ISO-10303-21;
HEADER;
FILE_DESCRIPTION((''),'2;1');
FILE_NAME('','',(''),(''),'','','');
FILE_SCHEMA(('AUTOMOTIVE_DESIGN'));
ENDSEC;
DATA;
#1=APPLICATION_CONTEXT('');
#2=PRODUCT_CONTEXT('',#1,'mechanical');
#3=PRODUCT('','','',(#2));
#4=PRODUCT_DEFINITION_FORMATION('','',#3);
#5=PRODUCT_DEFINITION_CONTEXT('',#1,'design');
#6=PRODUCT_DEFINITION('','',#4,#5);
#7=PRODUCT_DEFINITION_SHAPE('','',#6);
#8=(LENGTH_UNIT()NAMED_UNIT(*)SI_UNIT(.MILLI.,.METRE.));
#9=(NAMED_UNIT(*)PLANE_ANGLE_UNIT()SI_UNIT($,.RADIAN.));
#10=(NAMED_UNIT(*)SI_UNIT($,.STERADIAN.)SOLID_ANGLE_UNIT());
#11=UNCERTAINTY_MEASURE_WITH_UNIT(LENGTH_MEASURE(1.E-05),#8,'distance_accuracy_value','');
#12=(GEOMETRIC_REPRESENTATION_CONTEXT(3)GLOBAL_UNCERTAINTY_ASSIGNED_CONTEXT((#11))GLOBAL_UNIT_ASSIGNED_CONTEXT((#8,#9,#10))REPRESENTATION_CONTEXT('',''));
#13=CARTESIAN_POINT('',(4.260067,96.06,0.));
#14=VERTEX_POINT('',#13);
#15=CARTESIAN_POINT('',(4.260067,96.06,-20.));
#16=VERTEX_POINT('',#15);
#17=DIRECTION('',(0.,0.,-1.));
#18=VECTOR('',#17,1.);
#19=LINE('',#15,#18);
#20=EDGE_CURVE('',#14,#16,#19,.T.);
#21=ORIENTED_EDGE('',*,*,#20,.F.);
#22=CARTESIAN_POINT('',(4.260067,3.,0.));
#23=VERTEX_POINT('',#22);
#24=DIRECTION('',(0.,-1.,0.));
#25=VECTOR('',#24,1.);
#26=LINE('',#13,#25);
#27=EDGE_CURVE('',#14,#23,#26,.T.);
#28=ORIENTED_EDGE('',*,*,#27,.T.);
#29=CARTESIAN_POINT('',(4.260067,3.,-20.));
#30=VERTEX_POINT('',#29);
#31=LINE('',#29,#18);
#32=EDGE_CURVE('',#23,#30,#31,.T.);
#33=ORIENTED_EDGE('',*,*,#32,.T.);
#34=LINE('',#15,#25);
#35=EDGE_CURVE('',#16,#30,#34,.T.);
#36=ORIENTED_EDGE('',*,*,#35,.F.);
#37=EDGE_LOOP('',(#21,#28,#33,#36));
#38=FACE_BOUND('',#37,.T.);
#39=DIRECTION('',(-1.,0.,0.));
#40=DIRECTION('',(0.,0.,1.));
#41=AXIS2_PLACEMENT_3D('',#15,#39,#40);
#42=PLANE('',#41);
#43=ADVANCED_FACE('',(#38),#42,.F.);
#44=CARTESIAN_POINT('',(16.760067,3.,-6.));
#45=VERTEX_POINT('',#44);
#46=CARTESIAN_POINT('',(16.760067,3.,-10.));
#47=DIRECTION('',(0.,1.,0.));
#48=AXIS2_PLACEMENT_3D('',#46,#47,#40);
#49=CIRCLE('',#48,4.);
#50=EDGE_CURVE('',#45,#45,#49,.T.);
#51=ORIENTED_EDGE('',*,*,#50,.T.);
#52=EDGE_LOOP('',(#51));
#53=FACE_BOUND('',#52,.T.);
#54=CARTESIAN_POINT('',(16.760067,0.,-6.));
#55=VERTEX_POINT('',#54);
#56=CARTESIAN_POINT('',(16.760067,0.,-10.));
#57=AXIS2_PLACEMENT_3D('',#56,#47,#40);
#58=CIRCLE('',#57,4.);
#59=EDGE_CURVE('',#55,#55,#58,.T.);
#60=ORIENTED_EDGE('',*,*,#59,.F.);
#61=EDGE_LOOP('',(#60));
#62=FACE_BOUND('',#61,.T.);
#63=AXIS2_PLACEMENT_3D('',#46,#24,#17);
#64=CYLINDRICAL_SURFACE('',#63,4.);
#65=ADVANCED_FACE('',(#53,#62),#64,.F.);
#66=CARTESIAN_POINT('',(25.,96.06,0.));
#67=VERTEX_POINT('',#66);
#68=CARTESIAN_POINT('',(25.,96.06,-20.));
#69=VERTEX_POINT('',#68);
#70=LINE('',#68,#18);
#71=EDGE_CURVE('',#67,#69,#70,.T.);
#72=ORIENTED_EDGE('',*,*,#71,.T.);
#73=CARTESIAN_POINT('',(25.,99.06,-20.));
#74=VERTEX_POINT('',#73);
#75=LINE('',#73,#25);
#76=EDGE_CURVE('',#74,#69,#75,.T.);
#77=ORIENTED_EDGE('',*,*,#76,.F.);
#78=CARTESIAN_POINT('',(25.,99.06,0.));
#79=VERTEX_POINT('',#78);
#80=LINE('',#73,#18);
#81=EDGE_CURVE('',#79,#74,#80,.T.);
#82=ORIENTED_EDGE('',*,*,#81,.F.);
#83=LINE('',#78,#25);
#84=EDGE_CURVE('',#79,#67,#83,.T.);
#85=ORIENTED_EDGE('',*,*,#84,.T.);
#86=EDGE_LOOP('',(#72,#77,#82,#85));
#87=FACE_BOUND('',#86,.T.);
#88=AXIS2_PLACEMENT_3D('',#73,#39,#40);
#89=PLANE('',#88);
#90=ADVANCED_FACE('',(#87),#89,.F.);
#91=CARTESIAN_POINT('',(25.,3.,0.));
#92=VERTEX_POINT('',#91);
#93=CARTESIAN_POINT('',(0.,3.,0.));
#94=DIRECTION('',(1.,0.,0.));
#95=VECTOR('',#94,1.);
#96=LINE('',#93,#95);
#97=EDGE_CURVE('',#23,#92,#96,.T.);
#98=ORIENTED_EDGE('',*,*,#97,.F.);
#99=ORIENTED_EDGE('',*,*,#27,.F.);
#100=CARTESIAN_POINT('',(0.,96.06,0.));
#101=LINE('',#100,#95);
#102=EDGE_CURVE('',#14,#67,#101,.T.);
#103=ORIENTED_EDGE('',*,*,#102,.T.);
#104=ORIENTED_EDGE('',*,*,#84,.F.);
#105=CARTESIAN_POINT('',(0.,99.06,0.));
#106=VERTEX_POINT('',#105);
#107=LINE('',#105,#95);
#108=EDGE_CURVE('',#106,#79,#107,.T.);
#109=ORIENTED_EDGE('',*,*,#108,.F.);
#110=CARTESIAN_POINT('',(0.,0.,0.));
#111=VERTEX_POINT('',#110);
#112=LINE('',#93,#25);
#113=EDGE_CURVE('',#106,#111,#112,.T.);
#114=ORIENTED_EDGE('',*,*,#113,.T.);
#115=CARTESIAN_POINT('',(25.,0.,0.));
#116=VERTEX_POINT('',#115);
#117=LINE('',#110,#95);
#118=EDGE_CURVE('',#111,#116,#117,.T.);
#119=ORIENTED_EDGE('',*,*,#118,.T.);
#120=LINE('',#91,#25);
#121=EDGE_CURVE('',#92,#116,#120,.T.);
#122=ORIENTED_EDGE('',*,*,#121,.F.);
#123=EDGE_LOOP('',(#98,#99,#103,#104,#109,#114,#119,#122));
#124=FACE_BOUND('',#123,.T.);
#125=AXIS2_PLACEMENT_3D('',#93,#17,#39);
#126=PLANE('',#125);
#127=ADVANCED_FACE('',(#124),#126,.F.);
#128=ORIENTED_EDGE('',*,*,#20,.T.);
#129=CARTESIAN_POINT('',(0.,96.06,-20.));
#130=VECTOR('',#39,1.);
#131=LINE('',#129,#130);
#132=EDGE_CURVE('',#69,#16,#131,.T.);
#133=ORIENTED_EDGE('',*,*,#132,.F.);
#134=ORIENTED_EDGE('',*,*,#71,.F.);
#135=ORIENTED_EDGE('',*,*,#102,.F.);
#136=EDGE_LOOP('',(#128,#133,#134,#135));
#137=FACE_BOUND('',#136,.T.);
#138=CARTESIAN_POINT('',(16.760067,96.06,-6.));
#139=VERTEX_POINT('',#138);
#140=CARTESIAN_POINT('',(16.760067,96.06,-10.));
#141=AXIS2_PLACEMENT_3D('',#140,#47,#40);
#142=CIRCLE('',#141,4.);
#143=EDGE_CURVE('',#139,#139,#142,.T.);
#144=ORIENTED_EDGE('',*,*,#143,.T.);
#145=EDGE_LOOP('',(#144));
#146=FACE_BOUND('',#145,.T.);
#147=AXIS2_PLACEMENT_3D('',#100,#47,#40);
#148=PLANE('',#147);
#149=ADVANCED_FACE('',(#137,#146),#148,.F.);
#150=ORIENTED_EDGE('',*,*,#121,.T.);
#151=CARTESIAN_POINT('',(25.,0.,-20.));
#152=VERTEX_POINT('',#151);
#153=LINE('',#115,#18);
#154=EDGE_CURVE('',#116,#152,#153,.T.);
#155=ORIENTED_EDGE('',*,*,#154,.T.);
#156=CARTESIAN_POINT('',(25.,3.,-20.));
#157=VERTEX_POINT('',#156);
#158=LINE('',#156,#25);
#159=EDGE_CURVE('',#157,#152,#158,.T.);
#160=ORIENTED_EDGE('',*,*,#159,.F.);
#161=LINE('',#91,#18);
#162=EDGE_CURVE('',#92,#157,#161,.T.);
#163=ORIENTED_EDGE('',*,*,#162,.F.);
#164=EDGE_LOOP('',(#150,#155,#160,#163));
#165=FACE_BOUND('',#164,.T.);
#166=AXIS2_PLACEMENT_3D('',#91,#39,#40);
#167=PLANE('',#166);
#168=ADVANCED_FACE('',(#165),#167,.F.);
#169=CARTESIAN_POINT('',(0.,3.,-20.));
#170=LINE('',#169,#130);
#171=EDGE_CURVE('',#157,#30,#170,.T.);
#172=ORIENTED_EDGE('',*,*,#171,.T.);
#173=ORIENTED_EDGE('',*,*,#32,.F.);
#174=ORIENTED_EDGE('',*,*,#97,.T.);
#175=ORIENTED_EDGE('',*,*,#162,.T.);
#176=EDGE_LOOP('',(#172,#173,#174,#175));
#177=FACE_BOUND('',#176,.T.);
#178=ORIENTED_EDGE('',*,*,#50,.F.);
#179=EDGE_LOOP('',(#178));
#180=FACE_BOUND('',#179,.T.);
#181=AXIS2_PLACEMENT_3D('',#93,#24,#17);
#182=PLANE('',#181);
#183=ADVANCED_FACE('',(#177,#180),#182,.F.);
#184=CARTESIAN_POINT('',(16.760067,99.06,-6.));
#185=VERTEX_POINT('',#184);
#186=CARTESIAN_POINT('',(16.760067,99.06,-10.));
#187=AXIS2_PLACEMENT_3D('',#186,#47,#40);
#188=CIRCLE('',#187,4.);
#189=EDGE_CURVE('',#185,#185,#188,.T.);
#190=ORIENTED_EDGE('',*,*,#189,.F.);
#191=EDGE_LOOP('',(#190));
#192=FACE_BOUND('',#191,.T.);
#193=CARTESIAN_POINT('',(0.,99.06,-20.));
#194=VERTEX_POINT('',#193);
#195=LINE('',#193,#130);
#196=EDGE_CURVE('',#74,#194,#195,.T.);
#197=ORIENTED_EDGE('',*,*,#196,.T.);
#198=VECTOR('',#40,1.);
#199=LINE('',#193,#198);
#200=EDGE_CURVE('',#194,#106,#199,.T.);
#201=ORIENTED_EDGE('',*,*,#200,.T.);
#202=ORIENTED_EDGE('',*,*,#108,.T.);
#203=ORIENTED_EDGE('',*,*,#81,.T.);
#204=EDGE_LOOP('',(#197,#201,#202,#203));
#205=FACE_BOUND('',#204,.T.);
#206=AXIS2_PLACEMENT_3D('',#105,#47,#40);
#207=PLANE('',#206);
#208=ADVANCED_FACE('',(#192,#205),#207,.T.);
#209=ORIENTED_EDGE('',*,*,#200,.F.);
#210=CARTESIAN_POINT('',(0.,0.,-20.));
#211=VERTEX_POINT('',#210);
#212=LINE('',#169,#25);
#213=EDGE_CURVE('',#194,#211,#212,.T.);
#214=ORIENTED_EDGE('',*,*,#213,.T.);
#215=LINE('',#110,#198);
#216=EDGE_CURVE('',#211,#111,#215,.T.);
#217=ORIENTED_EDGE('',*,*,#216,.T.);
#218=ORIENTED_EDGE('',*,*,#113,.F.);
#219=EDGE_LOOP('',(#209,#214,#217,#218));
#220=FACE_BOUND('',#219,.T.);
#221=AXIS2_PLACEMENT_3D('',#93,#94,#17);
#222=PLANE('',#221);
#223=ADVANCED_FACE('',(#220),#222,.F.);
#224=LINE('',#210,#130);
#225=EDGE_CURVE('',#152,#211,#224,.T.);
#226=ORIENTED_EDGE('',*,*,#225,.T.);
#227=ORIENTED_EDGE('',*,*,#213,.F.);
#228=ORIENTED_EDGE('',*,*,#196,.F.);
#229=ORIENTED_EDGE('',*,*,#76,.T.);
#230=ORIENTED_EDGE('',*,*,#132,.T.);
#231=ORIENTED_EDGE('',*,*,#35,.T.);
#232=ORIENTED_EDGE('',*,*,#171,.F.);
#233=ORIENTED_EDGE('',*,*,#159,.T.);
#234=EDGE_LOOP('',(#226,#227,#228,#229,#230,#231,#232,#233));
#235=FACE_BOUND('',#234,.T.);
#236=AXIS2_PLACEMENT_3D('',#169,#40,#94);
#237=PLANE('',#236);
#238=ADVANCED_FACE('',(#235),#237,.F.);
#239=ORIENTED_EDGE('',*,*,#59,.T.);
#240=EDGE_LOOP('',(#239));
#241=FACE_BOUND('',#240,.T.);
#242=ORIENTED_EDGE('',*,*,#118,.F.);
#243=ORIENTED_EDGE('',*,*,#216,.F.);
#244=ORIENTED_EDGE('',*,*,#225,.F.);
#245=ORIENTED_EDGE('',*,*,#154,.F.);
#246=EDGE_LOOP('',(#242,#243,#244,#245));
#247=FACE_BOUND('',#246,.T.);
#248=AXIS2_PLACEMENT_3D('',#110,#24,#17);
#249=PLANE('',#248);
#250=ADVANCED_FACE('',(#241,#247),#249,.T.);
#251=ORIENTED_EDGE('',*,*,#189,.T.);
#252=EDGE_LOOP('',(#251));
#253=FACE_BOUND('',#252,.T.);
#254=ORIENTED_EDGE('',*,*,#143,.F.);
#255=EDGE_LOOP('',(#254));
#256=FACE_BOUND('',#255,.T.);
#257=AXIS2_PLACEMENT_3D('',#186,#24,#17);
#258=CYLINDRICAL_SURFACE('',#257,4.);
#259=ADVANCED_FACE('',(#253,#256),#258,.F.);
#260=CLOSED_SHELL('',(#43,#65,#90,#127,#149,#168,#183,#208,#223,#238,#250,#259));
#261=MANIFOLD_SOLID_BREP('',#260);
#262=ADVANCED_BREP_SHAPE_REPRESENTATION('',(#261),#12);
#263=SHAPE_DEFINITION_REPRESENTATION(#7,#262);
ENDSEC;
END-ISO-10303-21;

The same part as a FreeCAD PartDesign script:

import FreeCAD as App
import Part
import Sketcher
from FreeCAD import Vector

doc = App.newDocument("Part")
body = doc.addObject("PartDesign::Body", "Body")

# Sketch on XZ plane
sketch1 = body.newObject("Sketcher::SketchObject", "Sketch")
sketch1.AttachmentSupport = (doc.getObject("XZ_Plane"), [""])
sketch1.MapMode = "FlatFace"
sketch1.addGeometry(Part.LineSegment(Vector(0, -20, 0), Vector(0, 0, 0)), False)
sketch1.addGeometry(Part.LineSegment(Vector(0, 0, 0), Vector(25, 0, 0)), False)
sketch1.addGeometry(Part.LineSegment(Vector(25, 0, 0), Vector(25, -20, 0)), False)
sketch1.addGeometry(Part.LineSegment(Vector(25, -20, 0), Vector(0, -20, 0)), False)
sketch1.addGeometry(Part.Circle(Vector(16.8, -10, 0), Vector(0, 0, 1), 4), False)
sketch1.addConstraint(Sketcher.Constraint("Coincident", 0, 2, 1, 1))
sketch1.addConstraint(Sketcher.Constraint("Coincident", 1, 2, 2, 1))
sketch1.addConstraint(Sketcher.Constraint("Coincident", 2, 2, 3, 1))
sketch1.addConstraint(Sketcher.Constraint("Coincident", 3, 2, 0, 1))
sketch1.addConstraint(Sketcher.Constraint("Vertical", 0))
sketch1.addConstraint(Sketcher.Constraint("Horizontal", 1))
sketch1.addConstraint(Sketcher.Constraint("Vertical", 2))
sketch1.addConstraint(Sketcher.Constraint("Horizontal", 3))
sketch1.addConstraint(Sketcher.Constraint("Coincident", 0, 2, -1, 1))
sketch1.addConstraint(Sketcher.Constraint("Diameter", 4, 8.0))
sketch1.addConstraint(Sketcher.Constraint("DistanceX", 1, 1, 1, 2, 25.0))
sketch1.addConstraint(Sketcher.Constraint("DistanceY", 0, 1, 0, 2, 20.0))
sketch1.addConstraint(Sketcher.Constraint("DistanceY", 4, 3, -1, 1, 10.0))
sketch1.addConstraint(Sketcher.Constraint("DistanceX", -1, 1, 4, 3, 16.760067))
pad1 = body.newObject("PartDesign::Pad", "Pad")
pad1.Profile = sketch1
pad1.Length = 3
pad1.Reversed = True

# Sketch on XZ plane
sketch2 = body.newObject("Sketcher::SketchObject", "Sketch001")
sketch2.AttachmentSupport = (doc.getObject("XZ_Plane"), [""])
sketch2.MapMode = "FlatFace"
sketch2.AttachmentOffset = App.Placement(Vector(0, 0, -3), App.Rotation())
sketch2.addGeometry(Part.LineSegment(Vector(0, -20, 0), Vector(0, 0, 0)), False)
sketch2.addGeometry(Part.LineSegment(Vector(0, 0, 0), Vector(4.3, 0, 0)), False)
sketch2.addGeometry(Part.LineSegment(Vector(4.3, 0, 0), Vector(4.3, -20, 0)), False)
sketch2.addGeometry(Part.LineSegment(Vector(4.3, -20, 0), Vector(0, -20, 0)), False)
sketch2.addConstraint(Sketcher.Constraint("Coincident", 0, 2, 1, 1))
sketch2.addConstraint(Sketcher.Constraint("Coincident", 1, 2, 2, 1))
sketch2.addConstraint(Sketcher.Constraint("Coincident", 2, 2, 3, 1))
sketch2.addConstraint(Sketcher.Constraint("Coincident", 3, 2, 0, 1))
sketch2.addConstraint(Sketcher.Constraint("Vertical", 0))
sketch2.addConstraint(Sketcher.Constraint("Horizontal", 1))
sketch2.addConstraint(Sketcher.Constraint("Vertical", 2))
sketch2.addConstraint(Sketcher.Constraint("Horizontal", 3))
sketch2.addConstraint(Sketcher.Constraint("Coincident", 0, 2, -1, 1))
sketch2.addConstraint(Sketcher.Constraint("DistanceY", 0, 1, 0, 2, 20.0))
sketch2.addConstraint(Sketcher.Constraint("DistanceX", 1, 1, 1, 2, 4.260067))
pad2 = body.newObject("PartDesign::Pad", "Pad001")
pad2.Profile = sketch2
pad2.Length = 93.06
pad2.Reversed = True

# Sketch on XZ plane
sketch3 = body.newObject("Sketcher::SketchObject", "Sketch002")
sketch3.AttachmentSupport = (doc.getObject("XZ_Plane"), [""])
sketch3.MapMode = "FlatFace"
sketch3.AttachmentOffset = App.Placement(Vector(0, 0, -96.06), App.Rotation())
sketch3.addGeometry(Part.LineSegment(Vector(0, -20, 0), Vector(0, 0, 0)), False)
sketch3.addGeometry(Part.LineSegment(Vector(0, 0, 0), Vector(25, 0, 0)), False)
sketch3.addGeometry(Part.LineSegment(Vector(25, 0, 0), Vector(25, -20, 0)), False)
sketch3.addGeometry(Part.LineSegment(Vector(25, -20, 0), Vector(0, -20, 0)), False)
sketch3.addGeometry(Part.Circle(Vector(16.8, -10, 0), Vector(0, 0, 1), 4), False)
sketch3.addConstraint(Sketcher.Constraint("Coincident", 0, 2, 1, 1))
sketch3.addConstraint(Sketcher.Constraint("Coincident", 1, 2, 2, 1))
sketch3.addConstraint(Sketcher.Constraint("Coincident", 2, 2, 3, 1))
sketch3.addConstraint(Sketcher.Constraint("Coincident", 3, 2, 0, 1))
sketch3.addConstraint(Sketcher.Constraint("Vertical", 0))
sketch3.addConstraint(Sketcher.Constraint("Horizontal", 1))
sketch3.addConstraint(Sketcher.Constraint("Vertical", 2))
sketch3.addConstraint(Sketcher.Constraint("Horizontal", 3))
sketch3.addConstraint(Sketcher.Constraint("Coincident", 0, 2, -1, 1))
sketch3.addConstraint(Sketcher.Constraint("Diameter", 4, 8.0))
sketch3.addConstraint(Sketcher.Constraint("DistanceX", 1, 1, 1, 2, 25.0))
sketch3.addConstraint(Sketcher.Constraint("DistanceY", 0, 1, 0, 2, 20.0))
sketch3.addConstraint(Sketcher.Constraint("DistanceY", 4, 3, -1, 1, 10.0))
sketch3.addConstraint(Sketcher.Constraint("DistanceX", -1, 1, 4, 3, 16.760067))
pad3 = body.newObject("PartDesign::Pad", "Pad002")
pad3.Profile = sketch3
pad3.Length = 3
pad3.Reversed = True

doc.recompute()
